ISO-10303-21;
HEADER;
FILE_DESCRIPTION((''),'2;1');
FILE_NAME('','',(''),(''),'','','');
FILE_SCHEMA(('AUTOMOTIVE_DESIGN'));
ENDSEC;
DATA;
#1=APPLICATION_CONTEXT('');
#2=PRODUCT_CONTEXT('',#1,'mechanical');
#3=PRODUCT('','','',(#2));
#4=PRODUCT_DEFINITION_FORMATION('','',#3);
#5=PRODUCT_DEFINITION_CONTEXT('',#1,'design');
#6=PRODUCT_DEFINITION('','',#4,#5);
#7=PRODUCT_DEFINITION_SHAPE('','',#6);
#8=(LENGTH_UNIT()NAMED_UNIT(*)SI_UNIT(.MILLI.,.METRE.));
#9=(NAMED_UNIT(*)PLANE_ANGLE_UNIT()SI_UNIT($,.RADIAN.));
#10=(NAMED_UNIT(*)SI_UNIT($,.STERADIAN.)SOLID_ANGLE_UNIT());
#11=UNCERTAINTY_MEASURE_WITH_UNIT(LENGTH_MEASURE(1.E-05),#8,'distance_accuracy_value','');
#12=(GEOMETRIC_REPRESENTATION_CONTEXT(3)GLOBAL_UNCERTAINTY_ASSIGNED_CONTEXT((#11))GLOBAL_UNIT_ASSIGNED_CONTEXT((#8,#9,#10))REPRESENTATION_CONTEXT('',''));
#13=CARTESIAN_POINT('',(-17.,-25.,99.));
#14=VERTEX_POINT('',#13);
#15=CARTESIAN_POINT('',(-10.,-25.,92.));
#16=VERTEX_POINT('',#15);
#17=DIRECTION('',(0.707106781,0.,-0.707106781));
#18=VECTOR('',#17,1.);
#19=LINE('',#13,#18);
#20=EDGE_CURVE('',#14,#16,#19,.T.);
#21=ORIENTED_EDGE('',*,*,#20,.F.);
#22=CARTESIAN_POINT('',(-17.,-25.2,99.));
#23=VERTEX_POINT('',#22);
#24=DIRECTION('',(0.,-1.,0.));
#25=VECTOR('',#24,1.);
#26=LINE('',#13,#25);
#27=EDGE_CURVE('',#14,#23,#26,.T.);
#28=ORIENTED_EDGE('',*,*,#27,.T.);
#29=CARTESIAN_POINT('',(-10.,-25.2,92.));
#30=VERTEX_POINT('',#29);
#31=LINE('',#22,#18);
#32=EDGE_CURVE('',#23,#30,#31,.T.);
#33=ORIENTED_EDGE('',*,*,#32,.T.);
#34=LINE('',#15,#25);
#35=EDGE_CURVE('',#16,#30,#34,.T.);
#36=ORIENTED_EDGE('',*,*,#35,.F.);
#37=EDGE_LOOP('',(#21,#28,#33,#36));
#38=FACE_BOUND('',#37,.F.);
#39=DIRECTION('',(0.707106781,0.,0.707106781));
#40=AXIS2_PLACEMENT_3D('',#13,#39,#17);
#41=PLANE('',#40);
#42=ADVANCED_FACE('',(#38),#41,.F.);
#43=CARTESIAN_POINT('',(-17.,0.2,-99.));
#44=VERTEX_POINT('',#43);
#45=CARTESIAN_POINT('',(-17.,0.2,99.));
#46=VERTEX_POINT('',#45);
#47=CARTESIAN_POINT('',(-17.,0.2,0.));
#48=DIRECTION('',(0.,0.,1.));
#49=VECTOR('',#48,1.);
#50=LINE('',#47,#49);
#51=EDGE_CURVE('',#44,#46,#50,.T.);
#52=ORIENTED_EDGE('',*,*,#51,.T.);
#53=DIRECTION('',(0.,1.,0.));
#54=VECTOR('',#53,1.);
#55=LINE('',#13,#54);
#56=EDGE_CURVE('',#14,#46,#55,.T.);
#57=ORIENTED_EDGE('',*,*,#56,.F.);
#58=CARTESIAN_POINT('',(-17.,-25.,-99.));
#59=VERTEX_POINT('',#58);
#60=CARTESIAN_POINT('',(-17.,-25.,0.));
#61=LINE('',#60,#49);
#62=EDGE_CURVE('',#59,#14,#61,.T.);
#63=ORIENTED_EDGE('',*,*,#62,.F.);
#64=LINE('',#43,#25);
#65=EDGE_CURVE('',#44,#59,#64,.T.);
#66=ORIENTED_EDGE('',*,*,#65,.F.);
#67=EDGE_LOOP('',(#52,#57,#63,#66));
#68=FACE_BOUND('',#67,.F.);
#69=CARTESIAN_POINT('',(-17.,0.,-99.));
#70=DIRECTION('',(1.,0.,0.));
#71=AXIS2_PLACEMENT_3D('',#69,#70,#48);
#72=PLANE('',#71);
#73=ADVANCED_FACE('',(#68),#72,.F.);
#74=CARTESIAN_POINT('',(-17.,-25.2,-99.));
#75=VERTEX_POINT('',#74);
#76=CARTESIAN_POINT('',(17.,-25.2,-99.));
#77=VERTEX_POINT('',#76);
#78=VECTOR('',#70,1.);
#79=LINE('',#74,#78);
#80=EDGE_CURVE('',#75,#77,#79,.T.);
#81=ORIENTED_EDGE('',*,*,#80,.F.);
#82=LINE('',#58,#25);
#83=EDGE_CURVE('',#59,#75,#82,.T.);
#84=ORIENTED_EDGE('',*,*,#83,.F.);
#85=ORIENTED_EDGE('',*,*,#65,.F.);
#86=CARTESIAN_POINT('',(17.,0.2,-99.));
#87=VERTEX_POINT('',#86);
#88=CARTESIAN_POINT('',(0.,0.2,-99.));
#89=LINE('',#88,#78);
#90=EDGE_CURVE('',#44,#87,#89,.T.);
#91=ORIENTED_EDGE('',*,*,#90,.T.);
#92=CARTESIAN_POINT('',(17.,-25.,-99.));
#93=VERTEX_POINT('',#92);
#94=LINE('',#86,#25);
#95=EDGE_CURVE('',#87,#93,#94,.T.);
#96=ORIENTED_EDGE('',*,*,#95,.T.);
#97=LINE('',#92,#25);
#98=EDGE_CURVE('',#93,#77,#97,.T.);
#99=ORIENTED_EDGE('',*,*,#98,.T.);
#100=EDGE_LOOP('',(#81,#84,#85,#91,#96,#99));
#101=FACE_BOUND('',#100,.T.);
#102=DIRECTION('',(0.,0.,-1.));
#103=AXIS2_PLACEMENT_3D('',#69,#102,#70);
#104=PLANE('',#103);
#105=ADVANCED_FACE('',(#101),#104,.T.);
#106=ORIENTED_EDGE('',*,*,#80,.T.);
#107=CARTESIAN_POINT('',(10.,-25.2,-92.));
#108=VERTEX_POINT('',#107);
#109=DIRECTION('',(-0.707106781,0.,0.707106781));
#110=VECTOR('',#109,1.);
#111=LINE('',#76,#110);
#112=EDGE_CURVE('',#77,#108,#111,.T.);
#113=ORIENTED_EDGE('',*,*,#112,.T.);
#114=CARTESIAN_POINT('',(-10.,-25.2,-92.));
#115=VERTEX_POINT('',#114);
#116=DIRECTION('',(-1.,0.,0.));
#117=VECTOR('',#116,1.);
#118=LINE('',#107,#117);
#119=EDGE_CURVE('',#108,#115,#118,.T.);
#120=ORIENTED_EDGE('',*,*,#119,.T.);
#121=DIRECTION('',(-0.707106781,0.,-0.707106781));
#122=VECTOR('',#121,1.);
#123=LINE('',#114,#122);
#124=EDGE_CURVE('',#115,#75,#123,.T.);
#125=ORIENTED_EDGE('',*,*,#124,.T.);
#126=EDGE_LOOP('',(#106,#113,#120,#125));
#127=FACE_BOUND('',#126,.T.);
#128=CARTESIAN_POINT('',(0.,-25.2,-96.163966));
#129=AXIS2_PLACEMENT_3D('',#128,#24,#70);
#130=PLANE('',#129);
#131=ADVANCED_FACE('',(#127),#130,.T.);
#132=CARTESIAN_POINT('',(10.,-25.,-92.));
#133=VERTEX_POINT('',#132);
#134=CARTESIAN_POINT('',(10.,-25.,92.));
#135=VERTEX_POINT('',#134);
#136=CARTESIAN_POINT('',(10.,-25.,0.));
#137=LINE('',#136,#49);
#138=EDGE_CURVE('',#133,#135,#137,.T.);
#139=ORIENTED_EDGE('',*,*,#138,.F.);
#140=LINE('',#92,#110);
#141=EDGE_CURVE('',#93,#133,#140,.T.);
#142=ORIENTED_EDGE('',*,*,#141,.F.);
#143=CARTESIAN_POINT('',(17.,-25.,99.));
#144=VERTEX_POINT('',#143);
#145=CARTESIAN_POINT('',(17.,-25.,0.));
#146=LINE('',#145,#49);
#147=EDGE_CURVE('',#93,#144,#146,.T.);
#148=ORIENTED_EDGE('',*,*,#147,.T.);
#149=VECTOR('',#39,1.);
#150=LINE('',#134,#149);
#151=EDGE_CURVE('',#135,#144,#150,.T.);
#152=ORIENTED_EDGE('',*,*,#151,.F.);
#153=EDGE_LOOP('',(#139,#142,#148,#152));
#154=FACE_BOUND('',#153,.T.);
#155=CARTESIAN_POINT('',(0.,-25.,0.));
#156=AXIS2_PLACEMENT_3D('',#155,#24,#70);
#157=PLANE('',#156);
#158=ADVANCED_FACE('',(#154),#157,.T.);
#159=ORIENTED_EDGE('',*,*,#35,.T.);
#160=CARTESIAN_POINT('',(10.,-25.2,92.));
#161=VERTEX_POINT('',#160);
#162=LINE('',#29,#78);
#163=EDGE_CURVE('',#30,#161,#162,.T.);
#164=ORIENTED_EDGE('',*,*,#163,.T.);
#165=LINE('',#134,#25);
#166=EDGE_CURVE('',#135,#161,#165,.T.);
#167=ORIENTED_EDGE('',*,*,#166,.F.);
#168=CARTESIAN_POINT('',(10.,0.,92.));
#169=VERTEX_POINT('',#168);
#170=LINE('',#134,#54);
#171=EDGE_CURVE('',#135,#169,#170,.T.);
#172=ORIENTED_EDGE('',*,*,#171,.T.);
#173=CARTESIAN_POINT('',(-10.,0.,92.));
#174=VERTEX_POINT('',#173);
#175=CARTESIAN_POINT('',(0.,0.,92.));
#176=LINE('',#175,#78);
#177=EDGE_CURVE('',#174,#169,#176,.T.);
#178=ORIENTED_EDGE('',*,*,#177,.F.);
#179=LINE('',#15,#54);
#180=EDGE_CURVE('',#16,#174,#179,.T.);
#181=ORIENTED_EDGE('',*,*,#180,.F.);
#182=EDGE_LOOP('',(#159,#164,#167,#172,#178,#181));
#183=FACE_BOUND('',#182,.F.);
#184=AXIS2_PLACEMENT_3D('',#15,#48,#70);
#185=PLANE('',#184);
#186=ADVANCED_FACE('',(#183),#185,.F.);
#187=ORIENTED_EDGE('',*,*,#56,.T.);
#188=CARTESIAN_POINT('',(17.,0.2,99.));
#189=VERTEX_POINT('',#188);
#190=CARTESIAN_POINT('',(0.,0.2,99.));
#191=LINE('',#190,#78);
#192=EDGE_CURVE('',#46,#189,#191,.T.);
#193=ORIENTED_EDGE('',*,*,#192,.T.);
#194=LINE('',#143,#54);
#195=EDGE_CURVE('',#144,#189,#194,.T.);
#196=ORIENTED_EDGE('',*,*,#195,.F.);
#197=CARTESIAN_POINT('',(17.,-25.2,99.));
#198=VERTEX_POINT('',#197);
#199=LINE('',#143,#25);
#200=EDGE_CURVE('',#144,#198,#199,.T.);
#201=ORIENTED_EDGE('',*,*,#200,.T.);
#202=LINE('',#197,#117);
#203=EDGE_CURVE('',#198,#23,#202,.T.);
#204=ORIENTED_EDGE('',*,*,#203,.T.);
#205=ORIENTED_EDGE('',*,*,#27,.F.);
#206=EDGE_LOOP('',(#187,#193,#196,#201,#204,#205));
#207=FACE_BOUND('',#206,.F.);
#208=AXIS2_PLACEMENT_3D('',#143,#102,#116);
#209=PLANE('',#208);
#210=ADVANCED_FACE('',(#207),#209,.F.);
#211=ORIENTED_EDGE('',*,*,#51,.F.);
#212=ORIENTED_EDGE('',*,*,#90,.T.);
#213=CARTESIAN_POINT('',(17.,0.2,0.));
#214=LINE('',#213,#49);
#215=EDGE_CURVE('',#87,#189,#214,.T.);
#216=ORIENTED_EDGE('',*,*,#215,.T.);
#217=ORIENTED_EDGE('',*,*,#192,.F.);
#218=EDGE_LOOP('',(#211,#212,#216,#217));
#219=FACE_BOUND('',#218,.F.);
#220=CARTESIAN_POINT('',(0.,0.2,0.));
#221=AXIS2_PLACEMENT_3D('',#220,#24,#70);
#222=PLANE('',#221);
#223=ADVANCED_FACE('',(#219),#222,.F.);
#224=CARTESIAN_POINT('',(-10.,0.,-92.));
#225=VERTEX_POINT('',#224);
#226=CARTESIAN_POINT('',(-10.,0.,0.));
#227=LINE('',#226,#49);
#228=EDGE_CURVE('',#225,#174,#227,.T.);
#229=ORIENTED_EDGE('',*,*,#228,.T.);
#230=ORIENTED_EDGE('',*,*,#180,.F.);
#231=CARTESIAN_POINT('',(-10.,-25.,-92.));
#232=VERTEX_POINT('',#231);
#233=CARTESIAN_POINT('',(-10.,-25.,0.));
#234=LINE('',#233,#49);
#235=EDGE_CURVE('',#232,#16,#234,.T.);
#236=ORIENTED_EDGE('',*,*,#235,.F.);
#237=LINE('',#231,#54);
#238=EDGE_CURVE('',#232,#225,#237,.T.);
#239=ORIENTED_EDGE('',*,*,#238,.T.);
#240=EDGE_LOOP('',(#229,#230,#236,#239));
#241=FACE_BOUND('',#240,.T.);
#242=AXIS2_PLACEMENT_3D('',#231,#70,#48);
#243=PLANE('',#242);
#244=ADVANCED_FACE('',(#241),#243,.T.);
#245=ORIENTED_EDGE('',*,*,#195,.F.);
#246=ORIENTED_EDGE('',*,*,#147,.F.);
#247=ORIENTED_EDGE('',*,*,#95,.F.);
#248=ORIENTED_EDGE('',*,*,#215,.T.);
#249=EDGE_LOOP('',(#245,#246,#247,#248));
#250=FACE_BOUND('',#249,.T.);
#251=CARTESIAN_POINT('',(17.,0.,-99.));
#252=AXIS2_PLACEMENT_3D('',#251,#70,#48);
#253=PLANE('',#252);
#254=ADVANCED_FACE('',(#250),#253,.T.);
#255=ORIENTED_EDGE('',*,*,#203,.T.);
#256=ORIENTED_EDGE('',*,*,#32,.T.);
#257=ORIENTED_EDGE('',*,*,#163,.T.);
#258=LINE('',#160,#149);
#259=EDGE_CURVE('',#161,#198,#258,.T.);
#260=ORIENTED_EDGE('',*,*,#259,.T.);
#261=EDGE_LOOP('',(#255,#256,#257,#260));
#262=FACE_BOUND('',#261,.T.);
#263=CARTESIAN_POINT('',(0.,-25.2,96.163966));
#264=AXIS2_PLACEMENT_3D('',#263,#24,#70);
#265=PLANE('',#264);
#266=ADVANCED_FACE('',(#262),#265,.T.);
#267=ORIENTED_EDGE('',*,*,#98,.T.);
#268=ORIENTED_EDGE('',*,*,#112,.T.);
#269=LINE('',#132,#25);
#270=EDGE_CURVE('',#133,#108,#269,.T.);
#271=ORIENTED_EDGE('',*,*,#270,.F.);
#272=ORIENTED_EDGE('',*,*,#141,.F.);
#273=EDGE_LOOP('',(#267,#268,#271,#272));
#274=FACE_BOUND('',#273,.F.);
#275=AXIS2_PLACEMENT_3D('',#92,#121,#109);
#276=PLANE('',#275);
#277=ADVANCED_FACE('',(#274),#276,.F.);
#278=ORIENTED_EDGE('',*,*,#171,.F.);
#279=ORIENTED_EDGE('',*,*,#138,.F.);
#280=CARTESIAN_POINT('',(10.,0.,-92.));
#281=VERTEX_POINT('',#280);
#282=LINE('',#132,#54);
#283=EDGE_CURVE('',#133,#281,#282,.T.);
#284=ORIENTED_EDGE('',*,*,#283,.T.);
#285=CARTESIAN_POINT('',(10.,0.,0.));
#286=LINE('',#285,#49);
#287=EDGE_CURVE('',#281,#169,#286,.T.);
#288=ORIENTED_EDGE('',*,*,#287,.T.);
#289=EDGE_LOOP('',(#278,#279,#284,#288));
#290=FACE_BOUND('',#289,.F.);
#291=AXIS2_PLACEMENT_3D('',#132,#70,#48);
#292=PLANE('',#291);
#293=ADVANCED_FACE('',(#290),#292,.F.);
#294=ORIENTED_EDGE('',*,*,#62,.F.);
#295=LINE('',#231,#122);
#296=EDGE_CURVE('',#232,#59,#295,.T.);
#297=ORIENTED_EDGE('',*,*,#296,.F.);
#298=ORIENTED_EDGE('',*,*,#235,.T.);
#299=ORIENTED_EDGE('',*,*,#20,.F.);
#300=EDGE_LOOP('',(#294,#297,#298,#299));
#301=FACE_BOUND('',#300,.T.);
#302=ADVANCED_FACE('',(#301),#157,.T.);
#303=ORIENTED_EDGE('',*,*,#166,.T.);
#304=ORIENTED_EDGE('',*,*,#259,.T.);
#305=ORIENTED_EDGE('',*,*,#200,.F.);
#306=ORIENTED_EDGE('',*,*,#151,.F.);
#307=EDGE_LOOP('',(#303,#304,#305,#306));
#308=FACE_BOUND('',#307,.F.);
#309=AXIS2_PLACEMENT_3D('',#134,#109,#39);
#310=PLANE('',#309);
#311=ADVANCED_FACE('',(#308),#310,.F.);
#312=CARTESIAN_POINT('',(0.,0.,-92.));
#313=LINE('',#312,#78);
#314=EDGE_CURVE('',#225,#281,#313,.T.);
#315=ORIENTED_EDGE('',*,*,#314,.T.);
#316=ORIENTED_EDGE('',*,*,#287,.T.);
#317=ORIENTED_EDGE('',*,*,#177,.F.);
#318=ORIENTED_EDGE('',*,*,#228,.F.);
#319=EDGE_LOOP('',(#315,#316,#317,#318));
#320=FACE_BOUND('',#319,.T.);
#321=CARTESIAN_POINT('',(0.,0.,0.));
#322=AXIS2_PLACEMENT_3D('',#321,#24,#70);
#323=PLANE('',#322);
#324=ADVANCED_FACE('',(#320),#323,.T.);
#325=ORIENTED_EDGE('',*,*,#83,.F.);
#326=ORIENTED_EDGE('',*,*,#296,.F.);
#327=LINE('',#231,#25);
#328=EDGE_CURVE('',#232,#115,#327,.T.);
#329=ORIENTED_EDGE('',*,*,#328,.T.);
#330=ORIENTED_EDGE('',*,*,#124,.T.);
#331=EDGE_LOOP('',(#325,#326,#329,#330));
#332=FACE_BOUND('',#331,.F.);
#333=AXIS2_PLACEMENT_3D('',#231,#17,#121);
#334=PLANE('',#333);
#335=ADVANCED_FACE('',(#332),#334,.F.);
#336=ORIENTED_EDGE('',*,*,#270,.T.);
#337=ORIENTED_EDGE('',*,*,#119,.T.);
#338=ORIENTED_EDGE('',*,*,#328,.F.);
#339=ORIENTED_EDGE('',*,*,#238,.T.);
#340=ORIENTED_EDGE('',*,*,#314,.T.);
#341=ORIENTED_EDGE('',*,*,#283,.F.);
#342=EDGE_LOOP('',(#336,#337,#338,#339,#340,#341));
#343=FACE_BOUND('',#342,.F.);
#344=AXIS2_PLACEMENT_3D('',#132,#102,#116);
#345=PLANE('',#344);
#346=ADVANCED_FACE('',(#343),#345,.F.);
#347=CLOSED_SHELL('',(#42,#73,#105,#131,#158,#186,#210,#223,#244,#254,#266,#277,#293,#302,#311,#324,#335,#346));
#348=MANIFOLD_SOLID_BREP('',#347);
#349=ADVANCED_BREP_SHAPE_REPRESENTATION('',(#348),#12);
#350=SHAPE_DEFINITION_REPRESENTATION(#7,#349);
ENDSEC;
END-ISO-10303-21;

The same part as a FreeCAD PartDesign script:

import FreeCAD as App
import Part
import Sketcher

V = App.Vector
Q = App.Units.Quantity


def add_polygon(sketch, points):
    """Adds a closed chain of lines whose ends are joined by coincident constraints."""
    first, n = sketch.GeometryCount, len(points)
    for a, b in zip(points, points[1:] + points[:1]):
        sketch.addGeometry(Part.LineSegment(App.Vector(*a, 0), App.Vector(*b, 0)), False)
    for i in range(n):
        sketch.addConstraint(Sketcher.Constraint("Coincident", first + i, 2, first + (i + 1) % n, 1))

doc = App.newDocument("Part")
body = doc.addObject("PartDesign::Body", "Body")

sketch1 = doc.addObject("Sketcher::SketchObject", "Sketch")
body.addObject(sketch1)
sketch1.AttachmentSupport = (doc.XZ_Plane, [""])
sketch1.MapMode = "FlatFace"
add_polygon(sketch1, [(-17, 99), (-17, -99), (17, -99), (17, 99)])
sketch1.addConstraint(Sketcher.Constraint("Vertical", 0))
sketch1.addConstraint(Sketcher.Constraint("Horizontal", 1))
sketch1.addConstraint(Sketcher.Constraint("Vertical", 2))
sketch1.addConstraint(Sketcher.Constraint("Horizontal", 3))
sketch1.addConstraint(Sketcher.Constraint("Symmetric", 0, 2, 2, 2, -1, 1))
sketch1.addConstraint(Sketcher.Constraint("DistanceX", 1, 1, 1, 2, Q("34 mm")))
sketch1.addConstraint(Sketcher.Constraint("DistanceY", 0, 2, 0, 1, Q("198 mm")))
pad1 = doc.addObject("PartDesign::Pad", "Pad")
body.addObject(pad1)
pad1.Profile = sketch1
pad1.Length = 25

sketch2 = doc.addObject("Sketcher::SketchObject", "Sketch001")
body.addObject(sketch2)
sketch2.AttachmentSupport = (doc.XZ_Plane, [""])
sketch2.MapMode = "FlatFace"
add_polygon(sketch2, [(-17, 99), (-17, -99), (17, -99), (17, 99)])
sketch2.addConstraint(Sketcher.Constraint("Vertical", 0))
sketch2.addConstraint(Sketcher.Constraint("Horizontal", 1))
sketch2.addConstraint(Sketcher.Constraint("Vertical", 2))
sketch2.addConstraint(Sketcher.Constraint("Horizontal", 3))
sketch2.addConstraint(Sketcher.Constraint("Symmetric", 0, 2, 2, 2, -1, 1))
sketch2.addConstraint(Sketcher.Constraint("DistanceX", 1, 1, 1, 2, Q("34 mm")))
sketch2.addConstraint(Sketcher.Constraint("DistanceY", 0, 2, 0, 1, Q("198 mm")))
pad2 = doc.addObject("PartDesign::Pad", "Pad001")
body.addObject(pad2)
pad2.Profile = sketch2
pad2.Length = 0.2
pad2.Reversed = True

sketch3 = doc.addObject("Sketcher::SketchObject", "Sketch002")
body.addObject(sketch3)
sketch3.AttachmentSupport = (doc.XZ_Plane, [""])
sketch3.MapMode = "FlatFace"
sketch3.AttachmentOffset = App.Placement(V(0, 0, 25), App.Rotation())
add_polygon(sketch3, [(-10, 92), (-10, -92), (10, -92), (10, 92)])
sketch3.addConstraint(Sketcher.Constraint("Vertical", 0))
sketch3.addConstraint(Sketcher.Constraint("Horizontal", 1))
sketch3.addConstraint(Sketcher.Constraint("Vertical", 2))
sketch3.addConstraint(Sketcher.Constraint("Horizontal", 3))
sketch3.addConstraint(Sketcher.Constraint("Symmetric", 0, 2, 2, 2, -1, 1))
sketch3.addConstraint(Sketcher.Constraint("DistanceX", 1, 1, 1, 2, Q("20 mm")))
sketch3.addConstraint(Sketcher.Constraint("DistanceY", 0, 2, 0, 1, Q("184 mm")))
pocket1 = doc.addObject("PartDesign::Pocket", "Pocket")
body.addObject(pocket1)
pocket1.Profile = sketch3
pocket1.Length = 25

sketch4 = doc.addObject("Sketcher::SketchObject", "Sketch003")
body.addObject(sketch4)
sketch4.AttachmentSupport = (doc.XZ_Plane, [""])
sketch4.MapMode = "FlatFace"
sketch4.AttachmentOffset = App.Placement(V(0, 0, 25), App.Rotation())
add_polygon(sketch4, [(17, 99), (-17, 99), (-10, 92), (10, 92)])
add_polygon(sketch4, [(-10, -92), (-17, -99), (17, -99), (10, -92)])
sketch4.addConstraint(Sketcher.Constraint("Horizontal", 0))
sketch4.addConstraint(Sketcher.Constraint("Horizontal", 2))
sketch4.addConstraint(Sketcher.Constraint("Horizontal", 5))
sketch4.addConstraint(Sketcher.Constraint("Horizontal", 7))
sketch4.addConstraint(Sketcher.Constraint("Symmetric", 3, 2, 4, 2, -1, 1))
sketch4.addConstraint(Sketcher.Constraint("Symmetric", 1, 2, 6, 2, -1, 1))
sketch4.addConstraint(Sketcher.Constraint("Perpendicular", 1, 3))
sketch4.addConstraint(Sketcher.Constraint("Parallel", 3, 4))
sketch4.addConstraint(Sketcher.Constraint("Perpendicular", 4, 6))
sketch4.addConstraint(Sketcher.Constraint("Vertical", 0, 2, 4, 2))
sketch4.addConstraint(Sketcher.Constraint("Vertical", 2, 2, 6, 2))
sketch4.addConstraint(Sketcher.Constraint("DistanceX", 0, 2, 0, 1, Q("34 mm")))
sketch4.addConstraint(Sketcher.Constraint("DistanceX", 2, 1, 2, 2, Q("20 mm")))
sketch4.addConstraint(Sketcher.Constraint("DistanceY", -1, 1, 0, 2, Q("99 mm")))
pad3 = doc.addObject("PartDesign::Pad", "Pad002")
body.addObject(pad3)
pad3.Profile = sketch4
pad3.Length = 0.2

doc.recompute()
